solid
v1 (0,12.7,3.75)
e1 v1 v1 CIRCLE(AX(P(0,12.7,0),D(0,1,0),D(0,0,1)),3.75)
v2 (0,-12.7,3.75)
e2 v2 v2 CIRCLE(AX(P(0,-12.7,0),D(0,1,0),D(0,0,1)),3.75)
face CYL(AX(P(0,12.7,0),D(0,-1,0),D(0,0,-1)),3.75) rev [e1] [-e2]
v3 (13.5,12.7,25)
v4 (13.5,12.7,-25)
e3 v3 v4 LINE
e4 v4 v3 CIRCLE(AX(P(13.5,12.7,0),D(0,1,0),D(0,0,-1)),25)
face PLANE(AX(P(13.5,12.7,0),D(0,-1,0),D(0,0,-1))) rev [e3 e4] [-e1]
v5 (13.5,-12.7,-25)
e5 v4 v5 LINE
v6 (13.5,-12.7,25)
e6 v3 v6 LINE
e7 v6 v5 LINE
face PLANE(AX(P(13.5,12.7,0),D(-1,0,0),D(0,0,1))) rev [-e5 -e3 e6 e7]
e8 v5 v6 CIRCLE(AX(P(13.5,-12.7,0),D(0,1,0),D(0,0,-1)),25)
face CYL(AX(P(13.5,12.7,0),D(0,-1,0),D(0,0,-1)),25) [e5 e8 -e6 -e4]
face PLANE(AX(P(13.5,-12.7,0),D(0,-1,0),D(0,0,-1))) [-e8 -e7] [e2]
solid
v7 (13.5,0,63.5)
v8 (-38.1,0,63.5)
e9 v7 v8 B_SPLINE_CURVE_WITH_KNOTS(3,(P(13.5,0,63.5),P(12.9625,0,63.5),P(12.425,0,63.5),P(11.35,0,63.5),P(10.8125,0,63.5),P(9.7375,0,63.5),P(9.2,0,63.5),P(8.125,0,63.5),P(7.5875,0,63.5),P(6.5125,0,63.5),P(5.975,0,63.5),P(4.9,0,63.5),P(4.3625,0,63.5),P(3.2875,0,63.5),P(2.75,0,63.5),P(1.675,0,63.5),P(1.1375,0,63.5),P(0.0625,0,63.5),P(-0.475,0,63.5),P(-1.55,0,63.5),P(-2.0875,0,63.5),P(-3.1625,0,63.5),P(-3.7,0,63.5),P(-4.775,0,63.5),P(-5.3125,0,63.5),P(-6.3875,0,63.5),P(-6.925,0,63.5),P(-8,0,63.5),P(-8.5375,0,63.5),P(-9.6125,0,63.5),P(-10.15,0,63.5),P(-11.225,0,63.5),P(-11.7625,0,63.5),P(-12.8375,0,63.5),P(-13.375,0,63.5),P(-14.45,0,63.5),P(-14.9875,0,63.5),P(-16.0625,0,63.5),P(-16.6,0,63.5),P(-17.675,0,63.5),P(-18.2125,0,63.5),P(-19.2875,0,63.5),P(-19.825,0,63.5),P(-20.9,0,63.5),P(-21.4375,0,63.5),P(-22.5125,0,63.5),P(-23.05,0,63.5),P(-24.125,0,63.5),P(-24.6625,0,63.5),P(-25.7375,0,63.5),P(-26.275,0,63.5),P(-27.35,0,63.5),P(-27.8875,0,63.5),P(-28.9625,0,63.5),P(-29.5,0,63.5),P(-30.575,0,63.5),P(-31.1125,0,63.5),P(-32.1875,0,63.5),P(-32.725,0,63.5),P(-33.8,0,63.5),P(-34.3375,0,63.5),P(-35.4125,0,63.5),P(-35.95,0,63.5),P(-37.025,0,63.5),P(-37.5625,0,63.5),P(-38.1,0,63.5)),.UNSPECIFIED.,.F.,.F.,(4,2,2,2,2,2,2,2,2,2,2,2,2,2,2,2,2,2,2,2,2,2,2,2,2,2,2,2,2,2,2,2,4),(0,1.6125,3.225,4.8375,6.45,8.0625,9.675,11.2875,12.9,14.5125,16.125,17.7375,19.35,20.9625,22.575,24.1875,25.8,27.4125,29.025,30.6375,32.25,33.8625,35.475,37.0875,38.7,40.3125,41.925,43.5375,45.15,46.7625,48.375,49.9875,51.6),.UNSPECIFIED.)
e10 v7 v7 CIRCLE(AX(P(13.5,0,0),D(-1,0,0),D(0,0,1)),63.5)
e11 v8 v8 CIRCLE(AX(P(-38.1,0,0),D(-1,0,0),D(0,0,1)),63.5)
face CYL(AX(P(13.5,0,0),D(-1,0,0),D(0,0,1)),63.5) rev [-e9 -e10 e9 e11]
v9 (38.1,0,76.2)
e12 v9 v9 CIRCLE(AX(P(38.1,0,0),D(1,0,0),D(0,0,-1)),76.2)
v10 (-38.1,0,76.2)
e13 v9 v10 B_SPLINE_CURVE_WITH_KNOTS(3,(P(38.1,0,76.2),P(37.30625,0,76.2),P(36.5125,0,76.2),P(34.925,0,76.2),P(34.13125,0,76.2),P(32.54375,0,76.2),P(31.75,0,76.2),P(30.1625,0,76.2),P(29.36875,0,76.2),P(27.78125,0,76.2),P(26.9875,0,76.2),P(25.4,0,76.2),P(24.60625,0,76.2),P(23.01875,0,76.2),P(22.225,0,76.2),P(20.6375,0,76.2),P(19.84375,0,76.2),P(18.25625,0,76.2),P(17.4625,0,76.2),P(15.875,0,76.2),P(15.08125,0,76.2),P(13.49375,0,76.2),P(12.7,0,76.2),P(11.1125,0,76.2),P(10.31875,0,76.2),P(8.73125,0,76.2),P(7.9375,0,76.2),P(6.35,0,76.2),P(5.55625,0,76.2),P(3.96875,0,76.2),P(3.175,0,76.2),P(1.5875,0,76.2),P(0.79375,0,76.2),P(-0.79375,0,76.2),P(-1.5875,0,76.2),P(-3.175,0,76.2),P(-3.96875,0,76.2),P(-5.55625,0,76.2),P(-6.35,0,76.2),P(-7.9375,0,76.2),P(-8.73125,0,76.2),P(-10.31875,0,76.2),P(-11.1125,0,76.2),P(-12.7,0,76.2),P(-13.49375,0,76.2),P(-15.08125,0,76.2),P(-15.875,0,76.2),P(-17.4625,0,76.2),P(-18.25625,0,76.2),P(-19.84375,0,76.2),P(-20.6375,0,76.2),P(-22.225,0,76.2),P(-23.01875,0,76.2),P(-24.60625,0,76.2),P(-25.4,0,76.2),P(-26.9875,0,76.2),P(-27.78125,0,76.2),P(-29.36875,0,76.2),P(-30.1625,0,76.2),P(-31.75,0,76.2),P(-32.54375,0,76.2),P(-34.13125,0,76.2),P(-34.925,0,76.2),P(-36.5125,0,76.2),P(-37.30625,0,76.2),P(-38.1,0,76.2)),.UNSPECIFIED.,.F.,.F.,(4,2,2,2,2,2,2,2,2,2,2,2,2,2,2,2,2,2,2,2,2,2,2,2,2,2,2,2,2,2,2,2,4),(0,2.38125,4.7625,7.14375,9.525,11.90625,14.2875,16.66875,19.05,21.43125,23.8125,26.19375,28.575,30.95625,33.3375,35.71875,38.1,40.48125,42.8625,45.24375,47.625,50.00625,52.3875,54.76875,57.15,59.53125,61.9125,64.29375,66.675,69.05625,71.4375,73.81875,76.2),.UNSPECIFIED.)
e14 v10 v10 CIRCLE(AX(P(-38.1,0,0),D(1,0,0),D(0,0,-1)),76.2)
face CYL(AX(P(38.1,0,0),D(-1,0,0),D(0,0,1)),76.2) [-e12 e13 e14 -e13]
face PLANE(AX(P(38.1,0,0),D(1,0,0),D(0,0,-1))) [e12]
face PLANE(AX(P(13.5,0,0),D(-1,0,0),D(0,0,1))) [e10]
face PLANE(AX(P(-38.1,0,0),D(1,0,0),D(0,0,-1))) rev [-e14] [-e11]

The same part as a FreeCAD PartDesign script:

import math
import FreeCAD as App
import Part
import Sketcher

V = App.Vector
Q = App.Units.Quantity

doc = App.newDocument("Part")
body = doc.addObject("PartDesign::Body", "Body")

# Sketch on YZ plane
sketch1 = body.newObject("Sketcher::SketchObject", "Sketch")
sketch1.AttachmentSupport = (doc.getObject("YZ_Plane"), [""])
sketch1.MapMode = "FlatFace"
sketch1.addGeometry(Part.Circle(V(0, 0, 0), V(0, 0, 1), 76), False)
sketch1.addConstraint(Sketcher.Constraint("Coincident", 0, 3, -1, 1))
sketch1.addConstraint(Sketcher.Constraint("Diameter", 0, Q("6 in")))
pad1 = body.newObject("PartDesign::Pad", "Pad")
pad1.Profile = sketch1
pad1.Length = Q("3 in")
pad1.Midplane = True

# Sketch on YZ plane
sketch2 = body.newObject("Sketcher::SketchObject", "Sketch001")
sketch2.AttachmentSupport = (doc.getObject("YZ_Plane"), [""])
sketch2.MapMode = "FlatFace"
sketch2.AttachmentOffset = App.Placement(V(0, 0, -1.5 * 25.4), App.Rotation())
sketch2.addGeometry(Part.Circle(V(0, 0, 0), V(0, 0, 1), 64), False)
sketch2.addConstraint(Sketcher.Constraint("Coincident", 0, 3, -1, 1))
sketch2.addConstraint(Sketcher.Constraint("Diameter", 0, Q("5 in")))
pocket1 = body.newObject("PartDesign::Pocket", "Pocket")
pocket1.Profile = sketch2
pocket1.Length = 51.6
pocket1.Reversed = True
body2 = doc.addObject("PartDesign::Body", "Body001")

# Sketch on XZ plane
sketch3 = body2.newObject("Sketcher::SketchObject", "Sketch002")
sketch3.AttachmentSupport = (doc.getObject("XZ_Plane001"), [""])
sketch3.MapMode = "FlatFace"
sketch3.addGeometry(Part.ArcOfCircle(Part.Circle(V(13.5, 0, 0), V(0, 0, 1), 25), math.radians(90), math.radians(270)), False)
sketch3.addGeometry(Part.LineSegment(V(13.5, 25, 0), V(13.5, -25, 0)), False)
sketch3.addGeometry(Part.Circle(V(0, 0, 0), V(0, 0, 1), 3.8), False)
sketch3.addConstraint(Sketcher.Constraint("Coincident", 0, 1, 1, 1))
sketch3.addConstraint(Sketcher.Constraint("Coincident", 1, 2, 0, 2))
sketch3.addConstraint(Sketcher.Constraint("Vertical", 1))
sketch3.addConstraint(Sketcher.Constraint("Coincident", 2, 3, -1, 1))
sketch3.addConstraint(Sketcher.Constraint("PointOnObject", 0, 3, -1))
sketch3.addConstraint(Sketcher.Constraint("Diameter", 2, 7.5))
sketch3.addConstraint(Sketcher.Constraint("Radius", 0, 25.0))
sketch3.addConstraint(Sketcher.Constraint("DistanceX", -1, 1, 0, 3, 13.5))
sketch3.addConstraint(Sketcher.Constraint("DistanceX", -1, 1, 0, 1, 13.5))
pad2 = body2.newObject("PartDesign::Pad", "Pad001")
pad2.Profile = sketch3
pad2.Length = Q("1 in")
pad2.Midplane = True

doc.recompute()
